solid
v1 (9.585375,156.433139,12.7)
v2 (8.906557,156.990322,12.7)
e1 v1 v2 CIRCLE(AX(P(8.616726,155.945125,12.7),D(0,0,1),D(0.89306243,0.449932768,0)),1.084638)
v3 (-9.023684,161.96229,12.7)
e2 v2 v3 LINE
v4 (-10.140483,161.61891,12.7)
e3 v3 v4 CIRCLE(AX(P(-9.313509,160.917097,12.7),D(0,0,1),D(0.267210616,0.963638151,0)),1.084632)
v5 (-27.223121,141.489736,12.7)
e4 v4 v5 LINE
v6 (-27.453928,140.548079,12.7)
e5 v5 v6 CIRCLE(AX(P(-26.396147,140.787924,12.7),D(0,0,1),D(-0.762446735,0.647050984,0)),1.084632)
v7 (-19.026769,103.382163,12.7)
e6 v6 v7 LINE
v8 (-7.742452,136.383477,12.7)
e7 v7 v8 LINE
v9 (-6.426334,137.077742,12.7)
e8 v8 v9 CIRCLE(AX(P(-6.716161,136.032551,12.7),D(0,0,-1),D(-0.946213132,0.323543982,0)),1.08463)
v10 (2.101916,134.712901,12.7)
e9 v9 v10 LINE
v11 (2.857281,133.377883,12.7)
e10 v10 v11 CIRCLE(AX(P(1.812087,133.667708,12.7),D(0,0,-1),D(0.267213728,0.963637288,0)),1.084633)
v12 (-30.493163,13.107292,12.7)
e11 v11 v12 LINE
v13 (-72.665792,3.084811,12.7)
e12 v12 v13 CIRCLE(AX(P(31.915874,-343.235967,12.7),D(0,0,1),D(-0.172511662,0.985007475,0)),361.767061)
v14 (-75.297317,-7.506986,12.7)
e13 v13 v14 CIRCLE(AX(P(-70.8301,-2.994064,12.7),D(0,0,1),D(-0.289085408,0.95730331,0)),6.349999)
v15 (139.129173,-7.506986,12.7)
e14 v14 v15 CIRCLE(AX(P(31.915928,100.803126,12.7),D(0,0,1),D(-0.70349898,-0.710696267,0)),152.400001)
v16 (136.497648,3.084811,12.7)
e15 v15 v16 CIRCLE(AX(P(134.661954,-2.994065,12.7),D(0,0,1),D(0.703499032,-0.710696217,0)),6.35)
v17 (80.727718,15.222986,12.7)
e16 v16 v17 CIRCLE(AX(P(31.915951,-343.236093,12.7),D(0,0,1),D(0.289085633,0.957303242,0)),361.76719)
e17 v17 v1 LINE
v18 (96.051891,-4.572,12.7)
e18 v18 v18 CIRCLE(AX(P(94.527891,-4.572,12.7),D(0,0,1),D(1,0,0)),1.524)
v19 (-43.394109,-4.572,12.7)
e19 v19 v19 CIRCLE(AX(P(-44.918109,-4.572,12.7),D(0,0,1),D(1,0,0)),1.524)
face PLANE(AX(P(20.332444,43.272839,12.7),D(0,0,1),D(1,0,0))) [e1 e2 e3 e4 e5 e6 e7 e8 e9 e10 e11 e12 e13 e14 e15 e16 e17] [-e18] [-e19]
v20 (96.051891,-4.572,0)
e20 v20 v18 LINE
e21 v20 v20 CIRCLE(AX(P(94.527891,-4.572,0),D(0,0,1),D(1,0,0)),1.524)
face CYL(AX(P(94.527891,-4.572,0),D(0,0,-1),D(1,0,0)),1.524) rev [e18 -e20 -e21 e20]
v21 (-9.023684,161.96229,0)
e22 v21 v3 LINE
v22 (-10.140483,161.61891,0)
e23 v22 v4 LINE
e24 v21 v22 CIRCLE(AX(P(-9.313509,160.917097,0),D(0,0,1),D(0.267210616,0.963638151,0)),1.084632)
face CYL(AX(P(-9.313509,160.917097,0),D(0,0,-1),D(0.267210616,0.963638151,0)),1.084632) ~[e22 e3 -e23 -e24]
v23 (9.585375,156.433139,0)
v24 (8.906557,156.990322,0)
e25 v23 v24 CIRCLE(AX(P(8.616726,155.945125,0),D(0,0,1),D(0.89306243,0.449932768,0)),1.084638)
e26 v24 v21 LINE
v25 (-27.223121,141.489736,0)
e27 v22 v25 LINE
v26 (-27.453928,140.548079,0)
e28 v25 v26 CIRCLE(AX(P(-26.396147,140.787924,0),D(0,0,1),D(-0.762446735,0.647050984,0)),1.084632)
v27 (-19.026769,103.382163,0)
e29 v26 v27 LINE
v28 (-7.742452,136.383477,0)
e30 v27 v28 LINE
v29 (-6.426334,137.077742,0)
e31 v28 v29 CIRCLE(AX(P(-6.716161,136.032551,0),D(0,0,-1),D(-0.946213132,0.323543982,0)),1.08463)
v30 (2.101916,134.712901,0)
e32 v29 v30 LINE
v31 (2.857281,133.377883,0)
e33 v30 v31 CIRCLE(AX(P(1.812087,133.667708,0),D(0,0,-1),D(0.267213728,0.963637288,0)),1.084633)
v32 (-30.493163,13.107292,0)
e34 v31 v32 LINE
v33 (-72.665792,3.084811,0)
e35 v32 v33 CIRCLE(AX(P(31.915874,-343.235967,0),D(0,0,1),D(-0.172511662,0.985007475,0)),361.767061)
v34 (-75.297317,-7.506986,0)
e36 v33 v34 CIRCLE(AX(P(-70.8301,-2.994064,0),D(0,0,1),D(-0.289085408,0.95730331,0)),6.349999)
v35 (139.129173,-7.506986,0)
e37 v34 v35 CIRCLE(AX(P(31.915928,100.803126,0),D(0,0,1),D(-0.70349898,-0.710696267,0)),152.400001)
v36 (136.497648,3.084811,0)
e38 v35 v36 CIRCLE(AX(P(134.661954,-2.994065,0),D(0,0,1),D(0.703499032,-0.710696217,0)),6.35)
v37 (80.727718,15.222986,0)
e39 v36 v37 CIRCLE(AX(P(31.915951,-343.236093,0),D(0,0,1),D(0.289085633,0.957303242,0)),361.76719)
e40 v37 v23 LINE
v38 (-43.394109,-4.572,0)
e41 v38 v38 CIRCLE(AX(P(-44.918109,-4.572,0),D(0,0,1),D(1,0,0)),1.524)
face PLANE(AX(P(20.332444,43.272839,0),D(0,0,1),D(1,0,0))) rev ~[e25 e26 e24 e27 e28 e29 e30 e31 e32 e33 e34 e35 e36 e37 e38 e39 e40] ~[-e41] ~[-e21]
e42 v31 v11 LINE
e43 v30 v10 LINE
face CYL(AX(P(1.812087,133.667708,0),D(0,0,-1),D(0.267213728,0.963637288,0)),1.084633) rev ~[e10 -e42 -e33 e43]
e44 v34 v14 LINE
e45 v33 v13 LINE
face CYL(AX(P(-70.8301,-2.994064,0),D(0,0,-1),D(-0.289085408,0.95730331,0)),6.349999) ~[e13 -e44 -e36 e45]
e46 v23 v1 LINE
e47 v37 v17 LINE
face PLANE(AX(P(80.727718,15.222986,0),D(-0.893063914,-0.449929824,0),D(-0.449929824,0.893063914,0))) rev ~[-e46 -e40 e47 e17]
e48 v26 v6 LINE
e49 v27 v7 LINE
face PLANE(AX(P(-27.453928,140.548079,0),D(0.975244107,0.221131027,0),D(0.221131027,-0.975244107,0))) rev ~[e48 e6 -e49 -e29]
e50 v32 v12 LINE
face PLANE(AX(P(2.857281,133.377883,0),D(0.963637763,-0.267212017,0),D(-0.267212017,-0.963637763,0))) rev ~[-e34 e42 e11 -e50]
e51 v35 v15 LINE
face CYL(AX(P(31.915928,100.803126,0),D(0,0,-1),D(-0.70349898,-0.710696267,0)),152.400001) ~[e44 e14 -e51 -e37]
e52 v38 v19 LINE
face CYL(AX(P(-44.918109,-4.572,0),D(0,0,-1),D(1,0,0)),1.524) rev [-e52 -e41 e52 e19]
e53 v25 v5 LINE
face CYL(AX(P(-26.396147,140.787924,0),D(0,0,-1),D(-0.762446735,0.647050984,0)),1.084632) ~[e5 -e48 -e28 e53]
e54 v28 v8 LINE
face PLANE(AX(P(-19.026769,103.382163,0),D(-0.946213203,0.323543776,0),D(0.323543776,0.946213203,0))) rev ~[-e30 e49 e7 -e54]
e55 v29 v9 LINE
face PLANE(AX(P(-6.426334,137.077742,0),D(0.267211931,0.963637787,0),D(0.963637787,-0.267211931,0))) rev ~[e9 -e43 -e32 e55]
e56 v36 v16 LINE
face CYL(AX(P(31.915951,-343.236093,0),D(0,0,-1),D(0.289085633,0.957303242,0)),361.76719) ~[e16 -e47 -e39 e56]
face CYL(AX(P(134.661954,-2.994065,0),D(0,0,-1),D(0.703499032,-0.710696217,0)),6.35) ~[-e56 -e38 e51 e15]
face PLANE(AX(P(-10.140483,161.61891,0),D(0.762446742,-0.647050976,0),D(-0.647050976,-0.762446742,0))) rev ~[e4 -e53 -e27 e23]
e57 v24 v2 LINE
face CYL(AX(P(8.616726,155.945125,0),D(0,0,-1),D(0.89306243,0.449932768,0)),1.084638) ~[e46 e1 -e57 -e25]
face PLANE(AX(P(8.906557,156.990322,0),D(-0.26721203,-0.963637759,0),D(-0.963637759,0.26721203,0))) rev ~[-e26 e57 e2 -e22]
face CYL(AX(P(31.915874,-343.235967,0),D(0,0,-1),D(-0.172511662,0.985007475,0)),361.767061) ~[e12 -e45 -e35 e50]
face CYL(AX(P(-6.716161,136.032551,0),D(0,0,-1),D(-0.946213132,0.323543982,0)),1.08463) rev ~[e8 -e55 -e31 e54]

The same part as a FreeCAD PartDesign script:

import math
import FreeCAD as App
import Part
import Sketcher
Q = App.Units.Quantity

doc = App.newDocument("Part")
body = doc.addObject("PartDesign::Body", "Body")

sketch1 = body.newObject("Sketcher::SketchObject", "Sketch")
sketch1.AttachmentSupport = (doc.getObject("XY_Plane"), [""])
sketch1.MapMode = "FlatFace"
sketch1.addGeometry([
    Part.ArcOfCircle(Part.Circle(App.Vector(-70.8301, -2.994064, 0), App.Vector(0, 0, 1), 6.349999), math.radians(106.803209), math.radians(225.291605)),
    Part.ArcOfCircle(Part.Circle(App.Vector(31.915928, 100.803126, 0), App.Vector(0, 0, 1), 152.400001), math.radians(-134.708406), math.radians(-45.291594)),
    Part.ArcOfCircle(Part.Circle(App.Vector(134.661954, -2.994065, 0), App.Vector(0, 0, 1), 6.35), math.radians(-45.29159), math.radians(73.196776)),
    Part.ArcOfCircle(Part.Circle(App.Vector(31.915951, -343.236093, 0), App.Vector(0, 0, 1), 361.76719), math.radians(73.196778), math.radians(82.245664)),
    Part.LineSegment(App.Vector(80.727718, 15.222986, 0), App.Vector(9.585375, 156.433139, 0)),
    Part.ArcOfCircle(Part.Circle(App.Vector(8.616726, 155.945125, 0), App.Vector(0, 0, 1), 1.084638), math.radians(26.73937), math.radians(74.501404)),
    Part.LineSegment(App.Vector(8.906557, 156.990322, 0), App.Vector(-9.023684, 161.96229, 0)),
    Part.ArcOfCircle(Part.Circle(App.Vector(-9.313509, 160.917097, 0), App.Vector(0, 0, 1), 1.084632), math.radians(74.501651), math.radians(139.680329)),
    Part.LineSegment(App.Vector(-10.140483, 161.61891, 0), App.Vector(-27.223121, 141.489736, 0)),
    Part.ArcOfCircle(Part.Circle(App.Vector(-26.396147, 140.787924, 0), App.Vector(0, 0, 1), 1.084632), math.radians(139.680374), math.radians(192.775426)),
    Part.LineSegment(App.Vector(-27.453928, 140.548079, 0), App.Vector(-19.026769, 103.382163, 0)),
    Part.LineSegment(App.Vector(-19.026769, 103.382163, 0), App.Vector(-7.742452, 136.383477, 0)),
    Part.ArcOfCircle(Part.Circle(App.Vector(-6.716161, 136.032551, 0), App.Vector(0, 0, 1), 1.08463), math.radians(74.501548), math.radians(161.122614)),
    Part.LineSegment(App.Vector(-6.426334, 137.077742, 0), App.Vector(2.101916, 134.712901, 0)),
    Part.ArcOfCircle(Part.Circle(App.Vector(1.812087, 133.667708, 0), App.Vector(0, 0, 1), 1.084633), math.radians(-15.498334), math.radians(74.501466)),
    Part.LineSegment(App.Vector(2.857281, 133.377883, 0), App.Vector(-30.493163, 13.107292, 0)),
    Part.ArcOfCircle(Part.Circle(App.Vector(31.915874, -343.235967, 0), App.Vector(0, 0, 1), 361.767061), math.radians(99.933885), math.radians(106.803223)),
    Part.Circle(App.Vector(-44.918109, -4.572, 0), App.Vector(0, 0, 1), 1.524),
    Part.Circle(App.Vector(94.527891, -4.572, 0), App.Vector(0, 0, 1), 1.524),
], False)
sketch1.addConstraint([
    Sketcher.Constraint("Coincident", 0, 2, 1, 1),
    Sketcher.Constraint("Coincident", 1, 2, 2, 1),
    Sketcher.Constraint("Coincident", 2, 2, 3, 1),
    Sketcher.Constraint("Coincident", 3, 2, 4, 1),
    Sketcher.Constraint("Coincident", 4, 2, 5, 1),
    Sketcher.Constraint("Coincident", 5, 2, 6, 1),
    Sketcher.Constraint("Coincident", 6, 2, 7, 1),
    Sketcher.Constraint("Coincident", 7, 2, 8, 1),
    Sketcher.Constraint("Coincident", 8, 2, 9, 1),
    Sketcher.Constraint("Coincident", 9, 2, 10, 1),
    Sketcher.Constraint("Coincident", 10, 2, 11, 1),
    Sketcher.Constraint("Coincident", 11, 2, 12, 2),
    Sketcher.Constraint("Coincident", 12, 1, 13, 1),
    Sketcher.Constraint("Coincident", 13, 2, 14, 2),
    Sketcher.Constraint("Coincident", 14, 1, 15, 1),
    Sketcher.Constraint("Coincident", 15, 2, 16, 1),
    Sketcher.Constraint("Coincident", 16, 2, 0, 1),
    Sketcher.Constraint("Radius", 1, Q("6 in")),
    Sketcher.Constraint("Diameter", 17, Q("0.12 in")),
    Sketcher.Constraint("Diameter", 18, Q("0.12 in")),
    Sketcher.Constraint("Radius", 0, Q("0.25 in")),
    Sketcher.Constraint("Radius", 2, Q("0.25 in")),
    Sketcher.Constraint("DistanceY", 17, 3, -1, 1, Q("0.18 in")),
    Sketcher.Constraint("DistanceY", 18, 3, -1, 1, Q("0.18 in")),
    Sketcher.Constraint("DistanceX", 17, 3, 18, 3, Q("5.49 in")),
    Sketcher.Constraint("Radius", 3, Q("361.76719 mm")),
    Sketcher.Constraint("Radius", 9, Q("1.084632 mm")),
    Sketcher.Constraint("Radius", 12, Q("1.08463 mm")),
    Sketcher.Constraint("Radius", 16, Q("361.767061 mm")),
    Sketcher.Constraint("DistanceY", 1, 2, 2, 2, Q("0.4169999 in")),
    Sketcher.Constraint("DistanceY", 0, 2, 16, 2, Q("0.4169999 in")),
    Sketcher.Constraint("Distance", 8, Q("1.0394 in")),
    Sketcher.Constraint("Radius", 5, Q("1.084638 mm")),
    Sketcher.Constraint("Radius", 7, Q("1.084632 mm")),
    Sketcher.Constraint("Radius", 14, Q("1.084633 mm")),
    Sketcher.Constraint("DistanceX", 0, 3, -1, 1, Q("70.8301 mm")),
    Sketcher.Constraint("DistanceY", -1, 1, 13, 2, Q("134.712901 mm")),
    Sketcher.Constraint("DistanceY", 1, 3, 5, 3, Q("55.141999 mm")),
    Sketcher.Constraint("DistanceY", 9, 3, 5, 3, Q("15.157201 mm")),
    Sketcher.Constraint("DistanceX", 9, 3, 2, 3, Q("161.058101 mm")),
    Sketcher.Constraint("DistanceX", 7, 2, 6, 2, Q("1.116799 mm")),
    Sketcher.Constraint("DistanceY", 11, 2, 9, 2, Q("4.164602 mm")),
    Sketcher.Constraint("Distance", 11, Q("34.87725 mm")),
    Sketcher.Constraint("DistanceX", -1, 1, 1, 3, Q("31.915928 mm")),
    Sketcher.Constraint("DistanceX", -1, 1, 3, 3, Q("31.915951 mm")),
    Sketcher.Constraint("DistanceX", 7, 3, -1, 1, Q("9.313509 mm")),
    Sketcher.Constraint("DistanceX", 12, 3, -1, 1, Q("6.716161 mm")),
    Sketcher.Constraint("DistanceY", -1, 1, 12, 3, Q("136.032551 mm")),
    Sketcher.Constraint("DistanceY", -1, 1, 14, 3, Q("133.667708 mm")),
    Sketcher.Constraint("DistanceX", 17, 3, -1, 1, Q("44.918109 mm")),
    Sketcher.Constraint("DistanceX", -1, 1, 2, 2, Q("136.497648 mm")),
    Sketcher.Constraint("DistanceY", -1, 1, 2, 2, Q("3.084811 mm")),
    Sketcher.Constraint("DistanceX", -1, 1, 3, 2, Q("80.727718 mm")),
    Sketcher.Constraint("DistanceY", -1, 1, 4, 2, Q("156.433139 mm")),
    Sketcher.Constraint("DistanceY", -1, 1, 6, 2, Q("161.96229 mm")),
    Sketcher.Constraint("DistanceY", -1, 1, 7, 2, Q("161.61891 mm")),
    Sketcher.Constraint("DistanceX", 8, 2, -1, 1, Q("27.223121 mm")),
    Sketcher.Constraint("DistanceX", 9, 2, -1, 1, Q("27.453928 mm")),
    Sketcher.Constraint("DistanceX", 10, 2, -1, 1, Q("19.026769 mm")),
    Sketcher.Constraint("DistanceX", -1, 1, 14, 1, Q("2.857281 mm")),
    Sketcher.Constraint("DistanceY", -1, 1, 15, 2, Q("13.107292 mm")),
    Sketcher.Constraint("DistanceX", 16, 2, -1, 1, Q("72.665792 mm")),
    Sketcher.Constraint("DistanceX", 5, 3, 2, 3, Q("126.045228 mm")),
    Sketcher.Constraint("DistanceX", 14, 3, 5, 3, Q("6.804639 mm")),
    Sketcher.Constraint("DistanceX", 16, 3, 2, 3, Q("102.74608 mm")),
    Sketcher.Constraint("DistanceX", 5, 3, 5, 2, Q("0.289831 mm")),
    Sketcher.Constraint("DistanceY", 12, 3, 12, 1, Q("1.045191 mm")),
])
pad1 = body.newObject("PartDesign::Pad", "Pad")
pad1.Profile = sketch1
pad1.Length = Q("0.5 in")

doc.recompute()
